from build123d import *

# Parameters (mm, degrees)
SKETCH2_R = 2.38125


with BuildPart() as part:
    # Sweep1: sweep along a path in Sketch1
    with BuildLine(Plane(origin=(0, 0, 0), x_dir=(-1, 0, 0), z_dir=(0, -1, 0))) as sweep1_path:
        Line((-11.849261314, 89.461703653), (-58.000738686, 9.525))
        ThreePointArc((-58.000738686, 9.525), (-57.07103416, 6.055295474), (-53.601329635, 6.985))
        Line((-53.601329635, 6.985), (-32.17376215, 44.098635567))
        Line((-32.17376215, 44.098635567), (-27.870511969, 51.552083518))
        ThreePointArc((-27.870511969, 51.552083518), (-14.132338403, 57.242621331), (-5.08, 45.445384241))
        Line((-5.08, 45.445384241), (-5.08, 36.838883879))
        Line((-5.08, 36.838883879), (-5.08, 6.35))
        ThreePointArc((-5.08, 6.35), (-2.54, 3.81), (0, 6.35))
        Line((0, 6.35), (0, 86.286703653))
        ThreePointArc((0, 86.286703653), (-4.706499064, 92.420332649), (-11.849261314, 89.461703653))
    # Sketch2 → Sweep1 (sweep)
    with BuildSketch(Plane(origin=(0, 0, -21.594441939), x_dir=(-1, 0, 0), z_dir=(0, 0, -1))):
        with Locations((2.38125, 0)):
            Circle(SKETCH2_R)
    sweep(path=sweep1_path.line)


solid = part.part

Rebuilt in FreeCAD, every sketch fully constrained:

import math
import FreeCAD as App
import Part
import Sketcher
from FreeCAD import Vector
Q = App.Units.Quantity

doc = App.newDocument("Part")
body = doc.addObject("PartDesign::Body", "Body")

# Sketch on XY plane
sketch1 = doc.addObject("Sketcher::SketchObject", "Sketch")
body.addObject(sketch1)
sketch1.AttachmentSupport = (doc.XY_Plane, [""])
sketch1.MapMode = "FlatFace"
sketch1.AttachmentOffset = App.Placement(Vector(0, 0, -21.594442), App.Rotation())
sketch1.addGeometry(Part.Circle(Vector(-2.4, 0, 0), Vector(0, 0, 1), 2.4), False)
sketch1.addConstraint([
    Sketcher.Constraint("PointOnObject", 0, 3, -1),
    Sketcher.Constraint("Diameter", 0, Q("0.1875 in")),
    Sketcher.Constraint("DistanceX", 0, 3, -1, 1, Q("0.09375 in")),
])

# Sketch on XZ plane
sketch2 = doc.addObject("Sketcher::SketchObject", "Sketch001")
body.addObject(sketch2)
sketch2.AttachmentSupport = (doc.XZ_Plane, [""])
sketch2.MapMode = "FlatFace"
sketch2.addGeometry([
    Part.LineSegment(Vector(11.8, -89.5, 0), Vector(58, -9.5, 0)),  # 0
    Part.ArcOfCircle(Part.Circle(Vector(55.8, -8.3, 0), Vector(0, 0, 1), 2.5), math.radians(-30), math.radians(150)),  # 1
    Part.LineSegment(Vector(53.6, -7, 0), Vector(32.2, -44.1, 0)),  # 2
    Part.LineSegment(Vector(32.2, -44.1, 0), Vector(27.9, -51.6, 0)),  # 3
    Part.ArcOfCircle(Part.Circle(Vector(17.3, -45.4, 0), Vector(0, 0, 1), 12.2), math.radians(180), math.radians(330)),  # 4
    Part.LineSegment(Vector(5.1, -45.4, 0), Vector(5.1, -6.3, 0)),  # 5
    Part.ArcOfCircle(Part.Circle(Vector(2.5, -6.3, 0), Vector(0, 0, 1), 2.5), math.radians(0), math.radians(180)),  # 6
    Part.LineSegment(Vector(0, -6.3, 0), Vector(0, -86.3, 0)),  # 7
    Part.ArcOfCircle(Part.Circle(Vector(6.3, -86.3, 0), Vector(0, 0, 1), 6.3), math.radians(-180), math.radians(-30)),  # 8
], False)
sketch2.addConstraint([
    Sketcher.Constraint("Tangent", 0, 2, 1, 1),
    Sketcher.Constraint("Tangent", 1, 2, 2, 1),
    Sketcher.Constraint("Coincident", 2, 2, 3, 1),
    Sketcher.Constraint("Tangent", 3, 2, 4, 2),
    Sketcher.Constraint("Tangent", 4, 1, 5, 1),
    Sketcher.Constraint("Tangent", 5, 2, 6, 1),
    Sketcher.Constraint("Tangent", 6, 2, 7, 1),
    Sketcher.Constraint("Tangent", 7, 2, 8, 1),
    Sketcher.Constraint("Tangent", 8, 2, 0, 1),
    Sketcher.Constraint("Vertical", 5),
    Sketcher.Constraint("Vertical", 7),
    Sketcher.Constraint("Equal", 1, 6),
    Sketcher.Constraint("PointOnObject", 6, 2, -2),
    Sketcher.Constraint("Parallel", 0, 2),
    Sketcher.Constraint("Parallel", 2, 3),
    Sketcher.Constraint("Radius", 1, Q("0.1 in")),
    Sketcher.Constraint("Radius", 8, Q("0.25 in")),
    Sketcher.Constraint("Angle", 0, Q("60 deg")),
    Sketcher.Constraint("DistanceY", 6, 3, -1, 1, Q("0.25 in")),
    Sketcher.Constraint("Radius", 4, 12.213399),
    Sketcher.Constraint("DistanceY", 1, 3, -1, 1, Q("0.325 in")),
    Sketcher.Constraint("Distance", 3, 8.6065),
    Sketcher.Constraint("DistanceY", 5, 1, 5, 2, 39.095384),
])
doc.recompute()

additivepipe = doc.addObject("PartDesign::AdditivePipe", "AdditivePipe")
body.addObject(additivepipe)
additivepipe.Profile = sketch1
additivepipe.Spine = (sketch2, ["Edge1", "Edge2", "Edge3", "Edge4", "Edge5", "Edge6", "Edge7", "Edge8", "Edge9"])

doc.recompute()
